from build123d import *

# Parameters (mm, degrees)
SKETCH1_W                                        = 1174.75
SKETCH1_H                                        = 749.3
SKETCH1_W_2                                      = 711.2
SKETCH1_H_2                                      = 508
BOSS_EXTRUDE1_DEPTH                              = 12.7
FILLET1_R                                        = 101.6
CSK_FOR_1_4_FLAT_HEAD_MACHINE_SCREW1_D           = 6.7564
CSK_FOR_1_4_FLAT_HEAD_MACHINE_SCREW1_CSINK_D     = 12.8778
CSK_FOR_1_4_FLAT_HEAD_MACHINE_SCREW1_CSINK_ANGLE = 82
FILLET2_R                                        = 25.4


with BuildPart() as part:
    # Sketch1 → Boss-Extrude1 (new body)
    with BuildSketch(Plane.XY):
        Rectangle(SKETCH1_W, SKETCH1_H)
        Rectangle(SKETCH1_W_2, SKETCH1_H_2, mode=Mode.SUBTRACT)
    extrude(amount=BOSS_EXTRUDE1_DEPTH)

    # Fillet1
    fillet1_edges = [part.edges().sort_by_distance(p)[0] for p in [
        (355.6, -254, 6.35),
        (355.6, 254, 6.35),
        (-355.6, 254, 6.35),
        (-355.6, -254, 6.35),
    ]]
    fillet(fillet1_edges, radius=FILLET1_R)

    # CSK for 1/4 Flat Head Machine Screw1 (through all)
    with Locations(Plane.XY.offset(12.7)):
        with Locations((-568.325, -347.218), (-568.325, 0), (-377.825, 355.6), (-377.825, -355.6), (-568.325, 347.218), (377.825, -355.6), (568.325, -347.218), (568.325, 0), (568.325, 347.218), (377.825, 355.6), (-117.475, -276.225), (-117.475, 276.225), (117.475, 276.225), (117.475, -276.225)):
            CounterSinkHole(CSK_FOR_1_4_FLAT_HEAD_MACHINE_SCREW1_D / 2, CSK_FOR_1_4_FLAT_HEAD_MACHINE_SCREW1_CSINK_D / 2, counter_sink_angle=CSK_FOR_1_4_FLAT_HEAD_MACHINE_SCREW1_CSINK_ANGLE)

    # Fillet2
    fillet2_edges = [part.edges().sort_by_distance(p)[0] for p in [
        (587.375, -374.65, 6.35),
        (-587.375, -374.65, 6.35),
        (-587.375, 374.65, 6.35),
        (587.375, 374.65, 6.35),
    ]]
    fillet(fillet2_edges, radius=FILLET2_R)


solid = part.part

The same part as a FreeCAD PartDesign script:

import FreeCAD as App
import Part
import Sketcher

V = App.Vector
Q = App.Units.Quantity


def edges_at(feature, points):
    """Names of the edges that pass closest to the given points."""
    edges = feature.Shape.Edges
    near = lambda p: min(range(len(edges)), key=lambda i: edges[i].distToShape(Part.Vertex(*p))[0])
    return sorted({f"Edge{near(p) + 1}" for p in points})


def add_polygon(sketch, points):
    """Adds a closed chain of lines whose ends are joined by coincident constraints."""
    first, n = sketch.GeometryCount, len(points)
    for a, b in zip(points, points[1:] + points[:1]):
        sketch.addGeometry(Part.LineSegment(App.Vector(*a, 0), App.Vector(*b, 0)), False)
    for i in range(n):
        sketch.addConstraint(Sketcher.Constraint("Coincident", first + i, 2, first + (i + 1) % n, 1))

doc = App.newDocument("Part")
body = doc.addObject("PartDesign::Body", "Body")

# Sketch on XY plane
sketch1 = body.newObject("Sketcher::SketchObject", "Sketch")
sketch1.AttachmentSupport = (doc.getObject("XY_Plane"), [""])
sketch1.MapMode = "FlatFace"
add_polygon(sketch1, [(-587.375, 374.65), (-587.375, -374.65), (587.375, -374.65), (587.375, 374.65)])  # lines 0-3
add_polygon(sketch1, [(355.6, -254), (-355.6, -254), (-355.6, 254), (355.6, 254)])  # lines 4-7
sketch1.addConstraint([
    Sketcher.Constraint("Vertical", 0),
    Sketcher.Constraint("Horizontal", 1),
    Sketcher.Constraint("Vertical", 2),
    Sketcher.Constraint("Horizontal", 3),
    Sketcher.Constraint("Horizontal", 4),
    Sketcher.Constraint("Vertical", 5),
    Sketcher.Constraint("Horizontal", 6),
    Sketcher.Constraint("Vertical", 7),
    Sketcher.Constraint("Symmetric", 0, 2, 2, 2, -1, 1),
    Sketcher.Constraint("Symmetric", 4, 2, 6, 2, -1, 1),
    Sketcher.Constraint("DistanceX", 4, 2, 4, 1, Q("28 in")),
    Sketcher.Constraint("DistanceY", 5, 1, 5, 2, Q("20 in")),
    Sketcher.Constraint("DistanceY", 0, 2, 0, 1, Q("29.5 in")),
    Sketcher.Constraint("DistanceX", 1, 1, 1, 2, Q("46.25 in")),
])
pad1 = body.newObject("PartDesign::Pad", "Pad")
pad1.Profile = sketch1
pad1.Length = Q("0.5 in")
doc.recompute()

fillet = body.newObject("PartDesign::Fillet", "Fillet")
fillet.Base = (pad1, edges_at(pad1, [
    (355.6, -254, 6.35),
    (355.6, 254, 6.35),
    (-355.6, 254, 6.35),
    (-355.6, -254, 6.35),
]))
fillet.Radius = Q("4 in")

# Sketch on XY plane
sketch2 = body.newObject("Sketcher::SketchObject", "Sketch001")
sketch2.AttachmentSupport = (doc.getObject("XY_Plane"), [""])
sketch2.MapMode = "FlatFace"
sketch2.AttachmentOffset = App.Placement(V(0, 0, 0.5 * 25.4), App.Rotation())
sketch2.addGeometry([
    Part.Circle(V(-568.325, -347.218, 0), V(0, 0, 1), 3.3782),  # 0
    Part.Circle(V(-568.325, 0, 0), V(0, 0, 1), 3.3782),  # 1
    Part.Circle(V(-377.825, 355.6, 0), V(0, 0, 1), 3.3782),  # 2
    Part.Circle(V(-377.825, -355.6, 0), V(0, 0, 1), 3.3782),  # 3
    Part.Circle(V(-568.325, 347.218, 0), V(0, 0, 1), 3.3782),  # 4
    Part.Circle(V(377.825, -355.6, 0), V(0, 0, 1), 3.3782),  # 5
    Part.Circle(V(568.325, -347.218, 0), V(0, 0, 1), 3.3782),  # 6
    Part.Circle(V(568.325, 0, 0), V(0, 0, 1), 3.3782),  # 7
    Part.Circle(V(568.325, 347.218, 0), V(0, 0, 1), 3.3782),  # 8
    Part.Circle(V(377.825, 355.6, 0), V(0, 0, 1), 3.3782),  # 9
    Part.Circle(V(-117.475, -276.225, 0), V(0, 0, 1), 3.3782),  # 10
    Part.Circle(V(-117.475, 276.225, 0), V(0, 0, 1), 3.3782),  # 11
    Part.Circle(V(117.475, 276.225, 0), V(0, 0, 1), 3.3782),  # 12
    Part.Circle(V(117.475, -276.225, 0), V(0, 0, 1), 3.3782),  # 13
], False)
sketch2.addConstraint([
    Sketcher.Constraint("Equal", 0, 1),
    Sketcher.Constraint("Equal", 1, 2),
    Sketcher.Constraint("Equal", 2, 3),
    Sketcher.Constraint("Equal", 3, 4),
    Sketcher.Constraint("Equal", 4, 5),
    Sketcher.Constraint("Equal", 5, 6),
    Sketcher.Constraint("Equal", 6, 7),
    Sketcher.Constraint("Equal", 7, 8),
    Sketcher.Constraint("Equal", 8, 9),
    Sketcher.Constraint("Equal", 9, 10),
    Sketcher.Constraint("Equal", 10, 11),
    Sketcher.Constraint("Equal", 11, 12),
    Sketcher.Constraint("Equal", 12, 13),
    Sketcher.Constraint("Symmetric", 2, 3, 5, 3, -1, 1),
    Sketcher.Constraint("Symmetric", 4, 3, 6, 3, -1, 1),
    Sketcher.Constraint("Symmetric", 1, 3, 7, 3, -1, 1),
    Sketcher.Constraint("Symmetric", 0, 3, 8, 3, -1, 1),
    Sketcher.Constraint("Symmetric", 3, 3, 9, 3, -1, 1),
    Sketcher.Constraint("Symmetric", 10, 3, 12, 3, -1, 1),
    Sketcher.Constraint("Symmetric", 11, 3, 13, 3, -1, 1),
    Sketcher.Constraint("Symmetric", 3, 3, 5, 3, -2),
    Sketcher.Constraint("Symmetric", 0, 3, 6, 3, -2),
    Sketcher.Constraint("Symmetric", 11, 3, 12, 3, -2),
    Sketcher.Constraint("PointOnObject", 1, 3, -1),
    Sketcher.Constraint("Vertical", 0, 3, 1, 3),
    Sketcher.Constraint("Diameter", 0, Q("0.266 in")),
    Sketcher.Constraint("DistanceY", -1, 1, 2, 3, Q("14 in")),
    Sketcher.Constraint("DistanceX", 1, 3, 2, 3, Q("7.5 in")),
    Sketcher.Constraint("DistanceX", 10, 3, 5, 3, Q("19.5 in")),
    Sketcher.Constraint("DistanceY", 0, 3, -1, 1, Q("13.67 in")),
    Sketcher.Constraint("DistanceX", 3, 3, 5, 3, Q("29.75 in")),
    Sketcher.Constraint("DistanceY", 10, 3, 11, 3, Q("21.75 in")),
])
doc.recompute()
hole = body.newObject("PartDesign::Hole", "Hole")
hole.Profile = sketch2
hole.ThreadType = "None"
hole.Diameter = Q("0.266 in")
hole.DepthType = "ThroughAll"
hole.HoleCutType = "Countersink"
hole.HoleCutDiameter = Q("0.507 in")
hole.HoleCutCountersinkAngle = 82
doc.recompute()

fillet2 = body.newObject("PartDesign::Fillet", "Fillet001")
fillet2.Base = (hole, edges_at(hole, [
    (587.375, -374.65, 6.35),
    (-587.375, -374.65, 6.35),
    (-587.375, 374.65, 6.35),
    (587.375, 374.65, 6.35),
]))
fillet2.Radius = Q("1 in")

doc.recompute()
